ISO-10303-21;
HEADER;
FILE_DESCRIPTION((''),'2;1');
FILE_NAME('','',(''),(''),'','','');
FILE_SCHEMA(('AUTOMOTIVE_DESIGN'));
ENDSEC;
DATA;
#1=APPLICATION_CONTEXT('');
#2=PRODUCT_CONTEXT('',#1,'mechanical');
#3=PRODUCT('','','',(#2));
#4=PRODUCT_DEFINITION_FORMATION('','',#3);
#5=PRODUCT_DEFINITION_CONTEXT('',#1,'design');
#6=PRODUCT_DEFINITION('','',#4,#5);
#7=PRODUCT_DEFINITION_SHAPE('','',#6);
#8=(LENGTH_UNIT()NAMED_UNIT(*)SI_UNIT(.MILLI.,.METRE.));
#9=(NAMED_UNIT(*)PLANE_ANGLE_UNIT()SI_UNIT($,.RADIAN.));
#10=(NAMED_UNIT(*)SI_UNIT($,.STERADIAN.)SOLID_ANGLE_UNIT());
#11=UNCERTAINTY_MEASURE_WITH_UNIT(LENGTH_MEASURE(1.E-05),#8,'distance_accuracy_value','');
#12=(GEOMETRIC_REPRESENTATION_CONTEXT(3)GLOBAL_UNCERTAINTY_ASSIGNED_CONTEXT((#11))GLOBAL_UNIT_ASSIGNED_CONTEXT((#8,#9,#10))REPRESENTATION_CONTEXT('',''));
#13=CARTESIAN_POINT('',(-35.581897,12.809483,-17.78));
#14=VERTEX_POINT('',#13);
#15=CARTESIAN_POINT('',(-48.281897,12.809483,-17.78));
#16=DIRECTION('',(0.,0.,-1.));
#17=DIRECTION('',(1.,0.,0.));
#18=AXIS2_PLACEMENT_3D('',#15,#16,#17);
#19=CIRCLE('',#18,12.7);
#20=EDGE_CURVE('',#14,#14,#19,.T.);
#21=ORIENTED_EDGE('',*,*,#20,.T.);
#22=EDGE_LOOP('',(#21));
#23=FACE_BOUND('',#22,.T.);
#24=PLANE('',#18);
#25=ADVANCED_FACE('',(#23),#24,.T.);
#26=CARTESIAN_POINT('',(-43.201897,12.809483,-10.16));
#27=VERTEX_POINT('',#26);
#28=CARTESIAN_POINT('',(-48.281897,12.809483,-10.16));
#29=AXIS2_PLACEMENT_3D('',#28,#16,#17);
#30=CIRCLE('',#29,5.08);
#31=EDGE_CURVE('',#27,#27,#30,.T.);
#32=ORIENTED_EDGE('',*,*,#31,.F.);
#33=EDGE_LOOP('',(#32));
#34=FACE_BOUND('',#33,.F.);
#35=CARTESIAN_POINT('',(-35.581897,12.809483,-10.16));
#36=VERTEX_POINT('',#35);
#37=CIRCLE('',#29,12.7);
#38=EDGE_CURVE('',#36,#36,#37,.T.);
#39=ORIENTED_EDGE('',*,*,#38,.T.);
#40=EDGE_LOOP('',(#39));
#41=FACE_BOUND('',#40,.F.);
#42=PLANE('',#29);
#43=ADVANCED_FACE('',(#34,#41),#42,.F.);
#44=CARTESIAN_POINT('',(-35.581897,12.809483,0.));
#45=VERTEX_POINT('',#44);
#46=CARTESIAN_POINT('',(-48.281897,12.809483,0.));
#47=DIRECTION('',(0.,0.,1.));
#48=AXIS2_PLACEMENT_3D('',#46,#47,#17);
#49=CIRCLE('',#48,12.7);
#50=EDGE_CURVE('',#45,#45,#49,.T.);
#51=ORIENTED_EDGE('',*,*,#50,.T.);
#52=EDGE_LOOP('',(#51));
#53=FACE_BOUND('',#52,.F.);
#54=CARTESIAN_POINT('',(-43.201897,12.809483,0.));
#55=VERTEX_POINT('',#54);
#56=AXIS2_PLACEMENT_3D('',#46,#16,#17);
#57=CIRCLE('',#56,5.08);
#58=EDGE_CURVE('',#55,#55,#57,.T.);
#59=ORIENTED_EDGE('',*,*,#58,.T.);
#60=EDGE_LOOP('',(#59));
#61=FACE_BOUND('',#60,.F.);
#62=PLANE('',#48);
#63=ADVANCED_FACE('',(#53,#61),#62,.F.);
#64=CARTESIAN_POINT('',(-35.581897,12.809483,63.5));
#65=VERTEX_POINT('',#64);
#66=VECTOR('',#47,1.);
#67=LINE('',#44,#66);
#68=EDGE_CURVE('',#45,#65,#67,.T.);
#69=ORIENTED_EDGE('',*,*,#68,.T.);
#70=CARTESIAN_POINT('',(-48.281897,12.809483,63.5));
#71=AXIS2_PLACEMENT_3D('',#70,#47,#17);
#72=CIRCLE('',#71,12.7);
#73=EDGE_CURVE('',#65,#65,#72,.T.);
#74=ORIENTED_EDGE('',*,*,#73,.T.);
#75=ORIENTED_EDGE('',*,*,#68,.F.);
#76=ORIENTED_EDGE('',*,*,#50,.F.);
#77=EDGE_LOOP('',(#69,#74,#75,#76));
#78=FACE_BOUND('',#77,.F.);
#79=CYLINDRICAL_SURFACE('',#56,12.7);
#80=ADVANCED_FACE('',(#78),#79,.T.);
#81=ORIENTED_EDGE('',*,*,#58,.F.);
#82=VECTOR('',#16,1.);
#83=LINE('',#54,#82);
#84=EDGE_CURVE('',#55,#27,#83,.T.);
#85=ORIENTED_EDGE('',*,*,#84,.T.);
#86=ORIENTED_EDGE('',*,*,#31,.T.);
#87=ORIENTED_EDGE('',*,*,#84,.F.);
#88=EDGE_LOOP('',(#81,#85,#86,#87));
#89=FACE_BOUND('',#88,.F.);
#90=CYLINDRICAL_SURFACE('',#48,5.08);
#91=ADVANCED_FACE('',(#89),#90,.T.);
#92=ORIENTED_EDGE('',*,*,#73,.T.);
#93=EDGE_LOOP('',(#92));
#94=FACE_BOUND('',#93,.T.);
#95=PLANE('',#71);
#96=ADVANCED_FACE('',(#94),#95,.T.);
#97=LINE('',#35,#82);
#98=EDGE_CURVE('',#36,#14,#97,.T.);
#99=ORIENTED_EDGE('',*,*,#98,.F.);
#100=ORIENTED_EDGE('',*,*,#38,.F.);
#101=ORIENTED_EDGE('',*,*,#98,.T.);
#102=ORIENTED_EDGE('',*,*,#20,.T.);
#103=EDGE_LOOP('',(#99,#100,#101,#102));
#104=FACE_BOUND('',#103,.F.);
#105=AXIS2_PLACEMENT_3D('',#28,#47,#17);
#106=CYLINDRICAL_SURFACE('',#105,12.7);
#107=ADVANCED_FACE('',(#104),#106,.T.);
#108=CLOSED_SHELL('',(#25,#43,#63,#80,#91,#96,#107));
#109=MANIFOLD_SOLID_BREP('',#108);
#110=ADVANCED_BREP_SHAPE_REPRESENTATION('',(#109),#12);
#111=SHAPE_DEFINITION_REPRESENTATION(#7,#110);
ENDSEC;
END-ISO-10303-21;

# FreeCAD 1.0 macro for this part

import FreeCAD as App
import Part
import Sketcher

V = App.Vector
Q = App.Units.Quantity

doc = App.newDocument("Part")
body = doc.addObject("PartDesign::Body", "Body")

# Sketch on XY plane
sketch1 = body.newObject("Sketcher::SketchObject", "Sketch")
sketch1.AttachmentSupport = (doc.getObject("XY_Plane"), [""])
sketch1.MapMode = "FlatFace"
sketch1.addGeometry(Part.Circle(V(-48.281897, 12.809483, 0), V(0, 0, 1), 12.7), False)
sketch1.addConstraint([
    Sketcher.Constraint("Diameter", 0, Q("1 in")),
    Sketcher.Constraint("DistanceX", 0, 3, -1, 1, Q("48.281897 mm")),
    Sketcher.Constraint("DistanceY", -1, 1, 0, 3, Q("12.809483 mm")),
])
pad1 = body.newObject("PartDesign::Pad", "Pad")
pad1.Profile = sketch1
pad1.Length = Q("2.5 in")

# Sketch on XY plane
sketch2 = body.newObject("Sketcher::SketchObject", "Sketch001")
sketch2.AttachmentSupport = (doc.getObject("XY_Plane"), [""])
sketch2.MapMode = "FlatFace"
sketch2.addGeometry(Part.Circle(V(-48.281897, 12.809483, 0), V(0, 0, 1), 5.08), False)
sketch2.addConstraint([
    Sketcher.Constraint("Diameter", 0, Q("0.4 in")),
    Sketcher.Constraint("DistanceX", 0, 3, -1, 1, Q("48.281897 mm")),
    Sketcher.Constraint("DistanceY", -1, 1, 0, 3, Q("12.809483 mm")),
])
pad2 = body.newObject("PartDesign::Pad", "Pad001")
pad2.Profile = sketch2
pad2.Length = Q("0.4 in")
pad2.Reversed = True

# Sketch on XY plane
sketch3 = body.newObject("Sketcher::SketchObject", "Sketch002")
sketch3.AttachmentSupport = (doc.getObject("XY_Plane"), [""])
sketch3.MapMode = "FlatFace"
sketch3.AttachmentOffset = App.Placement(V(0, 0, -0.4 * 25.4), App.Rotation())
sketch3.addGeometry(Part.Circle(V(-48.281897, 12.809483, 0), V(0, 0, 1), 12.7), False)
sketch3.addConstraint([
    Sketcher.Constraint("Diameter", 0, Q("1 in")),
    Sketcher.Constraint("DistanceX", 0, 3, -1, 1, Q("48.281897 mm")),
    Sketcher.Constraint("DistanceY", -1, 1, 0, 3, Q("12.809483 mm")),
])
pad3 = body.newObject("PartDesign::Pad", "Pad002")
pad3.Profile = sketch3
pad3.Length = Q("0.3 in")
pad3.Reversed = True

doc.recompute()
